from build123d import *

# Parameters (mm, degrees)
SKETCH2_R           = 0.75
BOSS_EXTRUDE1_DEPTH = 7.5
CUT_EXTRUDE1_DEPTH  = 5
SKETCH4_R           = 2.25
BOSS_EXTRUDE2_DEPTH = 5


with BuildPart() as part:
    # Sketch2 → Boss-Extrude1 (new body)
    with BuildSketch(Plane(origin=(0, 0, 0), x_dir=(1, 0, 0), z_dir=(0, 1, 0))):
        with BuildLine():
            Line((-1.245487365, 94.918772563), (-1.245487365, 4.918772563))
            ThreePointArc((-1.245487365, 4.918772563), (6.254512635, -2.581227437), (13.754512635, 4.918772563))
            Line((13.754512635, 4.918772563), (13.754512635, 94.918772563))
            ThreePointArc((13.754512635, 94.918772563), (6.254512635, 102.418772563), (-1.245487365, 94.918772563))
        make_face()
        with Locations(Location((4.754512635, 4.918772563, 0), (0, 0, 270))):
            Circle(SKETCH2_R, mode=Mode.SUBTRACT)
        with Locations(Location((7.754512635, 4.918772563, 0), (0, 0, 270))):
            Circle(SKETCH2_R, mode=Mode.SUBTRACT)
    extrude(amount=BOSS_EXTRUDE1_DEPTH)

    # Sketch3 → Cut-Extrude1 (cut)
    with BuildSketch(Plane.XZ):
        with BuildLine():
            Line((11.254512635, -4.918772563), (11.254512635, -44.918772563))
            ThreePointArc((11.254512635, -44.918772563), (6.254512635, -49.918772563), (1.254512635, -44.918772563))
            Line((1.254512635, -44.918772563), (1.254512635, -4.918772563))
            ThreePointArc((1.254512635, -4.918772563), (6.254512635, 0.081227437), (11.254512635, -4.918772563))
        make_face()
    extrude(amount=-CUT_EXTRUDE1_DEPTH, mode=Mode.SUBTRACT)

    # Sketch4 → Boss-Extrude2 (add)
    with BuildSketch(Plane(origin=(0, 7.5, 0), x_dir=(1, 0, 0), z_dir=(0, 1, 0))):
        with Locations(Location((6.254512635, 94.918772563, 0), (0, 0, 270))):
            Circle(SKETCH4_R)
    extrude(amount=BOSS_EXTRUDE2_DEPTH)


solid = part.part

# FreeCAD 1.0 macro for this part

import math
import FreeCAD as App
import Part
import Sketcher

V = App.Vector

doc = App.newDocument("Part")
body = doc.addObject("PartDesign::Body", "Body")

sketch1 = body.newObject("Sketcher::SketchObject", "Sketch")
sketch1.AttachmentSupport = (doc.getObject("XZ_Plane"), [""])
sketch1.MapMode = "FlatFace"
sketch1.addGeometry(Part.LineSegment(V(-1.2, -94.9, 0), V(-1.2, -4.9, 0)), False)
sketch1.addGeometry(Part.ArcOfCircle(Part.Circle(V(6.3, -4.9, 0), V(0, 0, 1), 7.5), math.radians(0), math.radians(180)), False)
sketch1.addGeometry(Part.LineSegment(V(13.8, -4.9, 0), V(13.8, -94.9, 0)), False)
sketch1.addGeometry(Part.ArcOfCircle(Part.Circle(V(6.3, -94.9, 0), V(0, 0, 1), 7.5), math.radians(180), math.radians(360)), False)
sketch1.addGeometry(Part.Circle(V(4.8, -4.9, 0), V(0, 0, 1), 0.8), False)
sketch1.addGeometry(Part.Circle(V(7.8, -4.9, 0), V(0, 0, 1), 0.8), False)
sketch1.addConstraint(Sketcher.Constraint("Tangent", 0, 2, 1, 2))
sketch1.addConstraint(Sketcher.Constraint("Tangent", 1, 1, 2, 1))
sketch1.addConstraint(Sketcher.Constraint("Tangent", 2, 2, 3, 2))
sketch1.addConstraint(Sketcher.Constraint("Tangent", 3, 1, 0, 1))
sketch1.addConstraint(Sketcher.Constraint("Vertical", 0))
sketch1.addConstraint(Sketcher.Constraint("Vertical", 2))
sketch1.addConstraint(Sketcher.Constraint("Equal", 4, 5))
sketch1.addConstraint(Sketcher.Constraint("Horizontal", 1, 3, 4, 3))
sketch1.addConstraint(Sketcher.Constraint("Horizontal", 4, 3, 5, 3))
sketch1.addConstraint(Sketcher.Constraint("Diameter", 4, 1.5))
sketch1.addConstraint(Sketcher.Constraint("Radius", 1, 7.5))
sketch1.addConstraint(Sketcher.Constraint("DistanceY", 0, 1, 0, 2, 90.0))
sketch1.addConstraint(Sketcher.Constraint("DistanceX", 4, 3, 5, 3, 3.0))
sketch1.addConstraint(Sketcher.Constraint("DistanceX", 0, 2, 4, 3, 6.0))
sketch1.addConstraint(Sketcher.Constraint("DistanceX", -1, 1, 1, 3, 6.254513))
sketch1.addConstraint(Sketcher.Constraint("DistanceY", 1, 3, -1, 1, 4.918773))
pad1 = body.newObject("PartDesign::Pad", "Pad")
pad1.Profile = sketch1
pad1.Length = 7.5
pad1.Reversed = True

sketch2 = body.newObject("Sketcher::SketchObject", "Sketch001")
sketch2.AttachmentSupport = (doc.getObject("XZ_Plane"), [""])
sketch2.MapMode = "FlatFace"
sketch2.addGeometry(Part.LineSegment(V(11, -45, 0), V(11, -5, 0)), False)
sketch2.addGeometry(Part.ArcOfCircle(Part.Circle(V(6, -5, 0), V(0, 0, 1), 5), math.radians(0), math.radians(180)), False)
sketch2.addGeometry(Part.LineSegment(V(1, -5, 0), V(1, -45, 0)), False)
sketch2.addGeometry(Part.ArcOfCircle(Part.Circle(V(6, -45, 0), V(0, 0, 1), 5), math.radians(180), math.radians(360)), False)
sketch2.addConstraint(Sketcher.Constraint("Tangent", 0, 2, 1, 1))
sketch2.addConstraint(Sketcher.Constraint("Tangent", 1, 2, 2, 1))
sketch2.addConstraint(Sketcher.Constraint("Tangent", 2, 2, 3, 1))
sketch2.addConstraint(Sketcher.Constraint("Tangent", 3, 2, 0, 1))
sketch2.addConstraint(Sketcher.Constraint("Vertical", 0))
sketch2.addConstraint(Sketcher.Constraint("Vertical", 2))
sketch2.addConstraint(Sketcher.Constraint("Radius", 1, 5.0))
sketch2.addConstraint(Sketcher.Constraint("DistanceY", 0, 1, 0, 2, 40.0))
sketch2.addConstraint(Sketcher.Constraint("DistanceX", -1, 1, 1, 3, 6.254513))
sketch2.addConstraint(Sketcher.Constraint("DistanceY", 1, 3, -1, 1, 4.918773))
pocket1 = body.newObject("PartDesign::Pocket", "Pocket")
pocket1.Profile = sketch2
pocket1.Length = 5

sketch3 = body.newObject("Sketcher::SketchObject", "Sketch002")
sketch3.AttachmentSupport = (doc.getObject("XZ_Plane"), [""])
sketch3.MapMode = "FlatFace"
sketch3.AttachmentOffset = App.Placement(V(0, 0, -7.5), App.Rotation())
sketch3.addGeometry(Part.Circle(V(6.3, -94.9, 0), V(0, 0, 1), 2.2), False)
sketch3.addConstraint(Sketcher.Constraint("Diameter", 0, 4.5))
sketch3.addConstraint(Sketcher.Constraint("DistanceX", -1, 1, 0, 3, 6.254513))
sketch3.addConstraint(Sketcher.Constraint("DistanceY", 0, 3, -1, 1, 94.918773))
pad2 = body.newObject("PartDesign::Pad", "Pad001")
pad2.Profile = sketch3
pad2.Length = 5
pad2.Reversed = True

doc.recompute()
